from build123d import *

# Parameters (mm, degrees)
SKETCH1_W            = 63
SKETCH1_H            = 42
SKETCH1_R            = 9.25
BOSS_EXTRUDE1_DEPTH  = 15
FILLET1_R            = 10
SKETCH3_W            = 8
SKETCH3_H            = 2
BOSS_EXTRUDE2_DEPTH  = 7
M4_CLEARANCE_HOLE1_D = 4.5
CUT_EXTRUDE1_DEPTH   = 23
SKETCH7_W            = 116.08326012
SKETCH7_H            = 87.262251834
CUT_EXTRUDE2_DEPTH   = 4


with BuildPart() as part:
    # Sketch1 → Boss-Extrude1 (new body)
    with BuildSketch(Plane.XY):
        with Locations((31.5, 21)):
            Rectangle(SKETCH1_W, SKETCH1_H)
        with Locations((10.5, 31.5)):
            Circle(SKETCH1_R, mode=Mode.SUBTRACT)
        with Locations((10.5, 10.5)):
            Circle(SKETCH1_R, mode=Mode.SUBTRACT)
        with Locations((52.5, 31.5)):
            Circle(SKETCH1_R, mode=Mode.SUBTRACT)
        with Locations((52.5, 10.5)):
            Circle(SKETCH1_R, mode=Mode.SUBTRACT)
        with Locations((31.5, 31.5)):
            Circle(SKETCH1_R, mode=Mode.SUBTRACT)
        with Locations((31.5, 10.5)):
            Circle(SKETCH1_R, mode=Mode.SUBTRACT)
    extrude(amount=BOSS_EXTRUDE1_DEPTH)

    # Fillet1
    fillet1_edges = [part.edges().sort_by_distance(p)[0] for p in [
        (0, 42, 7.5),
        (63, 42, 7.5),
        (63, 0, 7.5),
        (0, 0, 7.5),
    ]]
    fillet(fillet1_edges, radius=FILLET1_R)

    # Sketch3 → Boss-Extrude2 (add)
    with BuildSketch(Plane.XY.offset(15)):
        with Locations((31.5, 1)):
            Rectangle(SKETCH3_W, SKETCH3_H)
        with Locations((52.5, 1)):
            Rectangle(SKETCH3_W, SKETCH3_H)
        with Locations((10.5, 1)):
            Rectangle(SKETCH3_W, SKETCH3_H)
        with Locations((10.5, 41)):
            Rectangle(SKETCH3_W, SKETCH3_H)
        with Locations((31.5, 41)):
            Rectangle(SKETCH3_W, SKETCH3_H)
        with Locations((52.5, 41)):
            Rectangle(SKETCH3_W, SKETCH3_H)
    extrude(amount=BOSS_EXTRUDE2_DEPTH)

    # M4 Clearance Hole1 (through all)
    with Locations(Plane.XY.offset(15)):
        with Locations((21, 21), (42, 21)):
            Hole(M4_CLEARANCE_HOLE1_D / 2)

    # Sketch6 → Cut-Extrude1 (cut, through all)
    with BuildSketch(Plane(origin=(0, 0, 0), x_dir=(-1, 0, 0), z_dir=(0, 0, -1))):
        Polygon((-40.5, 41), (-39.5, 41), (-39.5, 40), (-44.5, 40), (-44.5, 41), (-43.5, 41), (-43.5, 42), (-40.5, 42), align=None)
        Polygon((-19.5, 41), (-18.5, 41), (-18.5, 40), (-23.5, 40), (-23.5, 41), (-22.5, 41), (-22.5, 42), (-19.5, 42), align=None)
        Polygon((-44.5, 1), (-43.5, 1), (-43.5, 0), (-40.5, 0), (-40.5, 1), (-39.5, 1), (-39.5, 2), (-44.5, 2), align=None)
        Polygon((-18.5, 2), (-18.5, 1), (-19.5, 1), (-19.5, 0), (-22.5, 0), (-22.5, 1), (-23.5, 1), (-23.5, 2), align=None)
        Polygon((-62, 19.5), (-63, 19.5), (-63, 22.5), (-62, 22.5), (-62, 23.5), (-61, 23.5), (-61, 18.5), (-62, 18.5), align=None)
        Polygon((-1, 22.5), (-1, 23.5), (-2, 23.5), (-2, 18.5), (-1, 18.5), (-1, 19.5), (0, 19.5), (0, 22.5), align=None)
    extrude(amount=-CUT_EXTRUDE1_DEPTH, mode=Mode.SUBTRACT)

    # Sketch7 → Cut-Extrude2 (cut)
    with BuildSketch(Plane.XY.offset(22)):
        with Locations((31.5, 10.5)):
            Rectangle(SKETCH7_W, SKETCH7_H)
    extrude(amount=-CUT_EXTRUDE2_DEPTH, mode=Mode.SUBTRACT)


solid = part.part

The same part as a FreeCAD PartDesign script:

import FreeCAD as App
import Part
import Sketcher

V = App.Vector
Q = App.Units.Quantity


def edges_at(feature, points):
    """Names of the edges that pass closest to the given points."""
    edges = feature.Shape.Edges
    near = lambda p: min(range(len(edges)), key=lambda i: edges[i].distToShape(Part.Vertex(*p))[0])
    return sorted({f"Edge{near(p) + 1}" for p in points})


def add_polygon(sketch, points):
    """Adds a closed chain of lines whose ends are joined by coincident constraints."""
    first, n = sketch.GeometryCount, len(points)
    for a, b in zip(points, points[1:] + points[:1]):
        sketch.addGeometry(Part.LineSegment(App.Vector(*a, 0), App.Vector(*b, 0)), False)
    for i in range(n):
        sketch.addConstraint(Sketcher.Constraint("Coincident", first + i, 2, first + (i + 1) % n, 1))

doc = App.newDocument("Part")
params = doc.addObject("Spreadsheet::Sheet", "Params")
for row, (alias, value) in enumerate([
    ("sketch1_diameter", "18.5 mm"),
    ("sketch1_width", "63 mm"),
    ("sketch1_height", "42 mm"),
    ("pad1_length", "15 mm"),
    ("fillet_radius", "10 mm"),
    ("sketch2_width", "8 mm"),
    ("sketch2_height", "2 mm"),
    ("pad2_length", "7 mm"),
    ("sketch3_diameter", "4.5 mm"),
    ("hole_diameter", "4.5 mm"),
    ("sketch4_width", "1 mm"),
    ("sketch4_width2", "3 mm"),
    ("pocket2_length", "4 mm"),
], start=1):
    params.set(f"A{row}", alias)
    params.set(f"B{row}", "=" + value)
    params.setAlias(f"B{row}", alias)

body = doc.addObject("PartDesign::Body", "Body")

sketch1 = body.newObject("Sketcher::SketchObject", "Sketch")
sketch1.AttachmentSupport = (doc.getObject("XY_Plane"), [""])
sketch1.MapMode = "FlatFace"
add_polygon(sketch1, [(0, 42), (0, 0), (63, 0), (63, 42)])
sketch1.addGeometry(Part.Circle(V(10.5, 10.5, 0), V(0, 0, 1), 9.25), False)
sketch1.addGeometry(Part.Circle(V(31.5, 10.5, 0), V(0, 0, 1), 9.25), False)
sketch1.addGeometry(Part.Circle(V(52.5, 10.5, 0), V(0, 0, 1), 9.25), False)
sketch1.addGeometry(Part.Circle(V(10.5, 31.5, 0), V(0, 0, 1), 9.25), False)
sketch1.addGeometry(Part.Circle(V(31.5, 31.5, 0), V(0, 0, 1), 9.25), False)
sketch1.addGeometry(Part.Circle(V(52.5, 31.5, 0), V(0, 0, 1), 9.25), False)
sketch1.addConstraint([
    Sketcher.Constraint("Vertical", 0),
    Sketcher.Constraint("Horizontal", 1),
    Sketcher.Constraint("Vertical", 2),
    Sketcher.Constraint("Horizontal", 3),
    Sketcher.Constraint("Coincident", 0, 2, -1, 1),
    Sketcher.Constraint("Equal", 4, 5),
    Sketcher.Constraint("Equal", 5, 6),
    Sketcher.Constraint("Equal", 6, 7),
    Sketcher.Constraint("Equal", 7, 8),
    Sketcher.Constraint("Equal", 8, 9),
    Sketcher.Constraint("Horizontal", 4, 3, 5, 3),
    Sketcher.Constraint("Horizontal", 5, 3, 6, 3),
    Sketcher.Constraint("Horizontal", 7, 3, 8, 3),
    Sketcher.Constraint("Horizontal", 8, 3, 9, 3),
    Sketcher.Constraint("Vertical", 4, 3, 7, 3),
    Sketcher.Constraint("Vertical", 5, 3, 8, 3),
    Sketcher.Constraint("Vertical", 6, 3, 9, 3),
    Sketcher.Constraint("Diameter", 4, Q("18.5 mm")),
    Sketcher.Constraint("DistanceX", 1, 1, 1, 2, Q("63 mm")),
    Sketcher.Constraint("DistanceY", 0, 2, 0, 1, Q("42 mm")),
    Sketcher.Constraint("DistanceX", 4, 3, 5, 3, Q("21 mm")),
    Sketcher.Constraint("DistanceX", 5, 3, 6, 3, Q("21 mm")),
    Sketcher.Constraint("DistanceY", 4, 3, 7, 3, Q("21 mm")),
    Sketcher.Constraint("DistanceX", -1, 1, 4, 3, Q("10.5 mm")),
    Sketcher.Constraint("DistanceY", -1, 1, 4, 3, Q("10.5 mm")),
])
sketch1.setExpression("Constraints[21]", "Params.sketch1_diameter")
sketch1.setExpression("Constraints[22]", "Params.sketch1_width")
sketch1.setExpression("Constraints[23]", "Params.sketch1_height")
pad1 = body.newObject("PartDesign::Pad", "Pad")
pad1.Profile = sketch1
pad1.setExpression("Length", "Params.pad1_length")
doc.recompute()

fillet = body.newObject("PartDesign::Fillet", "Fillet")
fillet.Base = (pad1, edges_at(pad1, [
    (0, 42, 7.5),
    (63, 42, 7.5),
    (63, 0, 7.5),
    (0, 0, 7.5),
]))
fillet.setExpression("Radius", "Params.fillet_radius")

sketch2 = body.newObject("Sketcher::SketchObject", "Sketch001")
sketch2.AttachmentSupport = (doc.getObject("XY_Plane"), [""])
sketch2.MapMode = "FlatFace"
sketch2.AttachmentOffset = App.Placement(V(0, 0, 15), App.Rotation())
add_polygon(sketch2, [(27.5, 2), (27.5, 0), (35.5, 0), (35.5, 2)])
add_polygon(sketch2, [(48.5, 2), (48.5, 0), (56.5, 0), (56.5, 2)])
add_polygon(sketch2, [(6.5, 2), (6.5, 0), (14.5, 0), (14.5, 2)])
add_polygon(sketch2, [(6.5, 42), (6.5, 40), (14.5, 40), (14.5, 42)])
add_polygon(sketch2, [(27.5, 42), (27.5, 40), (35.5, 40), (35.5, 42)])
add_polygon(sketch2, [(48.5, 42), (48.5, 40), (56.5, 40), (56.5, 42)])
sketch2.addConstraint([
    Sketcher.Constraint("Vertical", 0),
    Sketcher.Constraint("Horizontal", 1),
    Sketcher.Constraint("Vertical", 2),
    Sketcher.Constraint("Horizontal", 3),
    Sketcher.Constraint("Vertical", 4),
    Sketcher.Constraint("Horizontal", 5),
    Sketcher.Constraint("Vertical", 6),
    Sketcher.Constraint("Horizontal", 7),
    Sketcher.Constraint("Vertical", 8),
    Sketcher.Constraint("Horizontal", 9),
    Sketcher.Constraint("Vertical", 10),
    Sketcher.Constraint("Horizontal", 11),
    Sketcher.Constraint("Vertical", 12),
    Sketcher.Constraint("Horizontal", 13),
    Sketcher.Constraint("Vertical", 14),
    Sketcher.Constraint("Horizontal", 15),
    Sketcher.Constraint("Vertical", 16),
    Sketcher.Constraint("Horizontal", 17),
    Sketcher.Constraint("Vertical", 18),
    Sketcher.Constraint("Horizontal", 19),
    Sketcher.Constraint("Vertical", 20),
    Sketcher.Constraint("Horizontal", 21),
    Sketcher.Constraint("Vertical", 22),
    Sketcher.Constraint("Horizontal", 23),
    Sketcher.Constraint("PointOnObject", 0, 2, -1),
    Sketcher.Constraint("PointOnObject", 4, 2, -1),
    Sketcher.Constraint("PointOnObject", 8, 2, -1),
    Sketcher.Constraint("Horizontal", 3, 2, 6, 2),
    Sketcher.Constraint("Horizontal", 7, 2, 10, 2),
    Sketcher.Constraint("Horizontal", 13, 2, 16, 2),
    Sketcher.Constraint("Horizontal", 15, 2, 18, 2),
    Sketcher.Constraint("Horizontal", 17, 2, 20, 2),
    Sketcher.Constraint("Horizontal", 19, 2, 22, 2),
    Sketcher.Constraint("Vertical", 11, 2, 12, 2),
    Sketcher.Constraint("Vertical", 10, 2, 13, 2),
    Sketcher.Constraint("Vertical", 3, 2, 16, 2),
    Sketcher.Constraint("Vertical", 2, 2, 17, 2),
    Sketcher.Constraint("Vertical", 7, 2, 20, 2),
    Sketcher.Constraint("Vertical", 6, 2, 21, 2),
    Sketcher.Constraint("Equal", 3, 5),
    Sketcher.Constraint("Equal", 7, 9),
    Sketcher.Constraint("Equal", 10, 12),
    Sketcher.Constraint("DistanceX", 1, 1, 1, 2, Q("8 mm")),
    Sketcher.Constraint("DistanceY", 0, 2, 0, 1, Q("2 mm")),
    Sketcher.Constraint("DistanceY", -1, 1, 12, 2, Q("40 mm")),
    Sketcher.Constraint("DistanceX", 1, 2, 4, 2, Q("13 mm")),
    Sketcher.Constraint("DistanceX", 8, 2, 0, 2, Q("21 mm")),
    Sketcher.Constraint("DistanceX", -1, 1, 0, 2, Q("27.5 mm")),
])
sketch2.setExpression("Constraints[66]", "Params.sketch2_width")
sketch2.setExpression("Constraints[67]", "Params.sketch2_height")
pad2 = body.newObject("PartDesign::Pad", "Pad001")
pad2.Profile = sketch2
pad2.setExpression("Length", "Params.pad2_length")

sketch3 = body.newObject("Sketcher::SketchObject", "Sketch002")
sketch3.AttachmentSupport = (doc.getObject("XY_Plane"), [""])
sketch3.MapMode = "FlatFace"
sketch3.AttachmentOffset = App.Placement(V(0, 0, 15), App.Rotation())
sketch3.addGeometry([
    Part.Circle(V(21, 21, 0), V(0, 0, 1), 2.25),
    Part.Circle(V(42, 21, 0), V(0, 0, 1), 2.25),
], False)
sketch3.addConstraint([
    Sketcher.Constraint("Equal", 0, 1),
    Sketcher.Constraint("Horizontal", 0, 3, 1, 3),
    Sketcher.Constraint("Diameter", 0, Q("4.5 mm")),
    Sketcher.Constraint("DistanceX", -1, 1, 0, 3, Q("21 mm")),
    Sketcher.Constraint("DistanceY", -1, 1, 0, 3, Q("21 mm")),
    Sketcher.Constraint("DistanceX", -1, 1, 1, 3, Q("42 mm")),
])
sketch3.setExpression("Constraints[2]", "Params.sketch3_diameter")
doc.recompute()
hole = body.newObject("PartDesign::Hole", "Hole")
hole.Profile = sketch3
hole.ThreadType = "None"
hole.setExpression("Diameter", "Params.hole_diameter")
hole.DepthType = "ThroughAll"

sketch4 = body.newObject("Sketcher::SketchObject", "Sketch003")
sketch4.AttachmentSupport = (doc.getObject("XY_Plane"), [""])
sketch4.MapMode = "FlatFace"
add_polygon(sketch4, [(39.5, 41), (40.5, 41), (40.5, 42), (43.5, 42), (43.5, 41), (44.5, 41), (44.5, 40), (39.5, 40)])
add_polygon(sketch4, [(18.5, 41), (19.5, 41), (19.5, 42), (22.5, 42), (22.5, 41), (23.5, 41), (23.5, 40), (18.5, 40)])
add_polygon(sketch4, [(44.5, 1), (43.5, 1), (43.5, 0), (40.5, 0), (40.5, 1), (39.5, 1), (39.5, 2), (44.5, 2)])
add_polygon(sketch4, [(18.5, 1), (18.5, 2), (23.5, 2), (23.5, 1), (22.5, 1), (22.5, 0), (19.5, 0), (19.5, 1)])
add_polygon(sketch4, [(63, 19.5), (62, 19.5), (62, 18.5), (61, 18.5), (61, 23.5), (62, 23.5), (62, 22.5), (63, 22.5)])
add_polygon(sketch4, [(1, 22.5), (1, 23.5), (2, 23.5), (2, 18.5), (1, 18.5), (1, 19.5), (0, 19.5), (0, 22.5)])
sketch4.addConstraint([
    Sketcher.Constraint("Horizontal", 0),
    Sketcher.Constraint("Vertical", 1),
    Sketcher.Constraint("Horizontal", 2),
    Sketcher.Constraint("Vertical", 3),
    Sketcher.Constraint("Horizontal", 4),
    Sketcher.Constraint("Vertical", 5),
    Sketcher.Constraint("Horizontal", 6),
    Sketcher.Constraint("Vertical", 7),
    Sketcher.Constraint("Horizontal", 8),
    Sketcher.Constraint("Vertical", 9),
    Sketcher.Constraint("Horizontal", 10),
    Sketcher.Constraint("Vertical", 11),
    Sketcher.Constraint("Horizontal", 12),
    Sketcher.Constraint("Vertical", 13),
    Sketcher.Constraint("Horizontal", 14),
    Sketcher.Constraint("Vertical", 15),
    Sketcher.Constraint("Horizontal", 16),
    Sketcher.Constraint("Vertical", 17),
    Sketcher.Constraint("Horizontal", 18),
    Sketcher.Constraint("Vertical", 19),
    Sketcher.Constraint("Horizontal", 20),
    Sketcher.Constraint("Vertical", 21),
    Sketcher.Constraint("Horizontal", 22),
    Sketcher.Constraint("Vertical", 23),
    Sketcher.Constraint("Vertical", 24),
    Sketcher.Constraint("Horizontal", 25),
    Sketcher.Constraint("Vertical", 26),
    Sketcher.Constraint("Horizontal", 27),
    Sketcher.Constraint("Vertical", 28),
    Sketcher.Constraint("Horizontal", 29),
    Sketcher.Constraint("Vertical", 30),
    Sketcher.Constraint("Horizontal", 31),
    Sketcher.Constraint("Horizontal", 32),
    Sketcher.Constraint("Vertical", 33),
    Sketcher.Constraint("Horizontal", 34),
    Sketcher.Constraint("Vertical", 35),
    Sketcher.Constraint("Horizontal", 36),
    Sketcher.Constraint("Vertical", 37),
    Sketcher.Constraint("Horizontal", 38),
    Sketcher.Constraint("Vertical", 39),
    Sketcher.Constraint("Vertical", 40),
    Sketcher.Constraint("Horizontal", 41),
    Sketcher.Constraint("Vertical", 42),
    Sketcher.Constraint("Horizontal", 43),
    Sketcher.Constraint("Vertical", 44),
    Sketcher.Constraint("Horizontal", 45),
    Sketcher.Constraint("Vertical", 46),
    Sketcher.Constraint("Horizontal", 47),
    Sketcher.Constraint("PointOnObject", 17, 2, -1),
    Sketcher.Constraint("PointOnObject", 28, 2, -1),
    Sketcher.Constraint("PointOnObject", 45, 2, -2),
    Sketcher.Constraint("Horizontal", 0, 2, 3, 2),
    Sketcher.Constraint("Horizontal", 7, 2, 8, 2),
    Sketcher.Constraint("Horizontal", 2, 2, 9, 2),
    Sketcher.Constraint("Horizontal", 8, 2, 11, 2),
    Sketcher.Constraint("Horizontal", 6, 2, 13, 2),
    Sketcher.Constraint("Horizontal", 16, 2, 19, 2),
    Sketcher.Constraint("Horizontal", 22, 2, 24, 2),
    Sketcher.Constraint("Horizontal", 23, 2, 26, 2),
    Sketcher.Constraint("Horizontal", 27, 2, 30, 2),
    Sketcher.Constraint("Horizontal", 36, 2, 40, 2),
    Sketcher.Constraint("Horizontal", 34, 2, 42, 2),
    Sketcher.Constraint("Horizontal", 39, 2, 44, 2),
    Sketcher.Constraint("Horizontal", 38, 2, 46, 2),
    Sketcher.Constraint("Vertical", 3, 2, 16, 2),
    Sketcher.Constraint("Vertical", 1, 2, 18, 2),
    Sketcher.Constraint("Vertical", 7, 2, 20, 2),
    Sketcher.Constraint("Vertical", 5, 2, 22, 2),
    Sketcher.Constraint("Vertical", 15, 2, 24, 2),
    Sketcher.Constraint("Vertical", 13, 2, 25, 2),
    Sketcher.Constraint("Vertical", 11, 2, 27, 2),
    Sketcher.Constraint("Vertical", 9, 2, 29, 2),
    Sketcher.Constraint("Vertical", 33, 2, 36, 2),
    Sketcher.Constraint("Vertical", 40, 2, 43, 2),
    Sketcher.Constraint("Equal", 0, 4),
    Sketcher.Constraint("Equal", 4, 8),
    Sketcher.Constraint("Equal", 2, 10),
    Sketcher.Constraint("Equal", 8, 12),
    Sketcher.Constraint("Equal", 31, 32),
    Sketcher.Constraint("Equal", 32, 34),
    Sketcher.Constraint("Equal", 38, 41),
    Sketcher.Constraint("Equal", 43, 45),
    Sketcher.Constraint("Equal", 47, 1),
    Sketcher.Constraint("Equal", 3, 5),
    Sketcher.Constraint("Equal", 15, 17),
    Sketcher.Constraint("Equal", 19, 21),
    Sketcher.Constraint("Equal", 30, 33),
    Sketcher.Constraint("Equal", 25, 35),
    Sketcher.Constraint("Equal", 33, 37),
    Sketcher.Constraint("DistanceX", 0, 1, 0, 2, Q("1 mm")),
    Sketcher.Constraint("DistanceX", 2, 1, 2, 2, Q("3 mm")),
    Sketcher.Constraint("DistanceY", -1, 1, 0, 2, Q("41 mm")),
    Sketcher.Constraint("DistanceX", -1, 1, 32, 2, Q("62 mm")),
    Sketcher.Constraint("DistanceX", 8, 2, 7, 2, Q("20 mm")),
    Sketcher.Constraint("DistanceX", -1, 1, 0, 2, Q("40.5 mm")),
    Sketcher.Constraint("DistanceY", -1, 1, 32, 2, Q("19.5 mm")),
])
sketch4.setExpression("Constraints[137]", "Params.sketch4_width")
sketch4.setExpression("Constraints[138]", "Params.sketch4_width2")
pocket1 = body.newObject("PartDesign::Pocket", "Pocket")
pocket1.Profile = sketch4
pocket1.Type = "ThroughAll"
pocket1.Reversed = True

sketch5 = body.newObject("Sketcher::SketchObject", "Sketch004")
sketch5.AttachmentSupport = (doc.getObject("XY_Plane"), [""])
sketch5.MapMode = "FlatFace"
sketch5.AttachmentOffset = App.Placement(V(0, 0, 22), App.Rotation())
add_polygon(sketch5, [(-26.54163, 54.131126), (-26.54163, -33.131126), (89.54163, -33.131126), (89.54163, 54.131126)])
sketch5.addConstraint([
    Sketcher.Constraint("Vertical", 0),
    Sketcher.Constraint("Horizontal", 1),
    Sketcher.Constraint("Vertical", 2),
    Sketcher.Constraint("Horizontal", 3),
    Sketcher.Constraint("DistanceX", 1, 1, 1, 2, Q("116.08326 mm")),
    Sketcher.Constraint("DistanceY", 0, 2, 0, 1, Q("87.262252 mm")),
    Sketcher.Constraint("DistanceX", 0, 2, -1, 1, Q("26.54163 mm")),
    Sketcher.Constraint("DistanceY", 0, 2, -1, 1, Q("33.131126 mm")),
])
pocket2 = body.newObject("PartDesign::Pocket", "Pocket001")
pocket2.Profile = sketch5
pocket2.setExpression("Length", "Params.pocket2_length")

doc.recompute()
